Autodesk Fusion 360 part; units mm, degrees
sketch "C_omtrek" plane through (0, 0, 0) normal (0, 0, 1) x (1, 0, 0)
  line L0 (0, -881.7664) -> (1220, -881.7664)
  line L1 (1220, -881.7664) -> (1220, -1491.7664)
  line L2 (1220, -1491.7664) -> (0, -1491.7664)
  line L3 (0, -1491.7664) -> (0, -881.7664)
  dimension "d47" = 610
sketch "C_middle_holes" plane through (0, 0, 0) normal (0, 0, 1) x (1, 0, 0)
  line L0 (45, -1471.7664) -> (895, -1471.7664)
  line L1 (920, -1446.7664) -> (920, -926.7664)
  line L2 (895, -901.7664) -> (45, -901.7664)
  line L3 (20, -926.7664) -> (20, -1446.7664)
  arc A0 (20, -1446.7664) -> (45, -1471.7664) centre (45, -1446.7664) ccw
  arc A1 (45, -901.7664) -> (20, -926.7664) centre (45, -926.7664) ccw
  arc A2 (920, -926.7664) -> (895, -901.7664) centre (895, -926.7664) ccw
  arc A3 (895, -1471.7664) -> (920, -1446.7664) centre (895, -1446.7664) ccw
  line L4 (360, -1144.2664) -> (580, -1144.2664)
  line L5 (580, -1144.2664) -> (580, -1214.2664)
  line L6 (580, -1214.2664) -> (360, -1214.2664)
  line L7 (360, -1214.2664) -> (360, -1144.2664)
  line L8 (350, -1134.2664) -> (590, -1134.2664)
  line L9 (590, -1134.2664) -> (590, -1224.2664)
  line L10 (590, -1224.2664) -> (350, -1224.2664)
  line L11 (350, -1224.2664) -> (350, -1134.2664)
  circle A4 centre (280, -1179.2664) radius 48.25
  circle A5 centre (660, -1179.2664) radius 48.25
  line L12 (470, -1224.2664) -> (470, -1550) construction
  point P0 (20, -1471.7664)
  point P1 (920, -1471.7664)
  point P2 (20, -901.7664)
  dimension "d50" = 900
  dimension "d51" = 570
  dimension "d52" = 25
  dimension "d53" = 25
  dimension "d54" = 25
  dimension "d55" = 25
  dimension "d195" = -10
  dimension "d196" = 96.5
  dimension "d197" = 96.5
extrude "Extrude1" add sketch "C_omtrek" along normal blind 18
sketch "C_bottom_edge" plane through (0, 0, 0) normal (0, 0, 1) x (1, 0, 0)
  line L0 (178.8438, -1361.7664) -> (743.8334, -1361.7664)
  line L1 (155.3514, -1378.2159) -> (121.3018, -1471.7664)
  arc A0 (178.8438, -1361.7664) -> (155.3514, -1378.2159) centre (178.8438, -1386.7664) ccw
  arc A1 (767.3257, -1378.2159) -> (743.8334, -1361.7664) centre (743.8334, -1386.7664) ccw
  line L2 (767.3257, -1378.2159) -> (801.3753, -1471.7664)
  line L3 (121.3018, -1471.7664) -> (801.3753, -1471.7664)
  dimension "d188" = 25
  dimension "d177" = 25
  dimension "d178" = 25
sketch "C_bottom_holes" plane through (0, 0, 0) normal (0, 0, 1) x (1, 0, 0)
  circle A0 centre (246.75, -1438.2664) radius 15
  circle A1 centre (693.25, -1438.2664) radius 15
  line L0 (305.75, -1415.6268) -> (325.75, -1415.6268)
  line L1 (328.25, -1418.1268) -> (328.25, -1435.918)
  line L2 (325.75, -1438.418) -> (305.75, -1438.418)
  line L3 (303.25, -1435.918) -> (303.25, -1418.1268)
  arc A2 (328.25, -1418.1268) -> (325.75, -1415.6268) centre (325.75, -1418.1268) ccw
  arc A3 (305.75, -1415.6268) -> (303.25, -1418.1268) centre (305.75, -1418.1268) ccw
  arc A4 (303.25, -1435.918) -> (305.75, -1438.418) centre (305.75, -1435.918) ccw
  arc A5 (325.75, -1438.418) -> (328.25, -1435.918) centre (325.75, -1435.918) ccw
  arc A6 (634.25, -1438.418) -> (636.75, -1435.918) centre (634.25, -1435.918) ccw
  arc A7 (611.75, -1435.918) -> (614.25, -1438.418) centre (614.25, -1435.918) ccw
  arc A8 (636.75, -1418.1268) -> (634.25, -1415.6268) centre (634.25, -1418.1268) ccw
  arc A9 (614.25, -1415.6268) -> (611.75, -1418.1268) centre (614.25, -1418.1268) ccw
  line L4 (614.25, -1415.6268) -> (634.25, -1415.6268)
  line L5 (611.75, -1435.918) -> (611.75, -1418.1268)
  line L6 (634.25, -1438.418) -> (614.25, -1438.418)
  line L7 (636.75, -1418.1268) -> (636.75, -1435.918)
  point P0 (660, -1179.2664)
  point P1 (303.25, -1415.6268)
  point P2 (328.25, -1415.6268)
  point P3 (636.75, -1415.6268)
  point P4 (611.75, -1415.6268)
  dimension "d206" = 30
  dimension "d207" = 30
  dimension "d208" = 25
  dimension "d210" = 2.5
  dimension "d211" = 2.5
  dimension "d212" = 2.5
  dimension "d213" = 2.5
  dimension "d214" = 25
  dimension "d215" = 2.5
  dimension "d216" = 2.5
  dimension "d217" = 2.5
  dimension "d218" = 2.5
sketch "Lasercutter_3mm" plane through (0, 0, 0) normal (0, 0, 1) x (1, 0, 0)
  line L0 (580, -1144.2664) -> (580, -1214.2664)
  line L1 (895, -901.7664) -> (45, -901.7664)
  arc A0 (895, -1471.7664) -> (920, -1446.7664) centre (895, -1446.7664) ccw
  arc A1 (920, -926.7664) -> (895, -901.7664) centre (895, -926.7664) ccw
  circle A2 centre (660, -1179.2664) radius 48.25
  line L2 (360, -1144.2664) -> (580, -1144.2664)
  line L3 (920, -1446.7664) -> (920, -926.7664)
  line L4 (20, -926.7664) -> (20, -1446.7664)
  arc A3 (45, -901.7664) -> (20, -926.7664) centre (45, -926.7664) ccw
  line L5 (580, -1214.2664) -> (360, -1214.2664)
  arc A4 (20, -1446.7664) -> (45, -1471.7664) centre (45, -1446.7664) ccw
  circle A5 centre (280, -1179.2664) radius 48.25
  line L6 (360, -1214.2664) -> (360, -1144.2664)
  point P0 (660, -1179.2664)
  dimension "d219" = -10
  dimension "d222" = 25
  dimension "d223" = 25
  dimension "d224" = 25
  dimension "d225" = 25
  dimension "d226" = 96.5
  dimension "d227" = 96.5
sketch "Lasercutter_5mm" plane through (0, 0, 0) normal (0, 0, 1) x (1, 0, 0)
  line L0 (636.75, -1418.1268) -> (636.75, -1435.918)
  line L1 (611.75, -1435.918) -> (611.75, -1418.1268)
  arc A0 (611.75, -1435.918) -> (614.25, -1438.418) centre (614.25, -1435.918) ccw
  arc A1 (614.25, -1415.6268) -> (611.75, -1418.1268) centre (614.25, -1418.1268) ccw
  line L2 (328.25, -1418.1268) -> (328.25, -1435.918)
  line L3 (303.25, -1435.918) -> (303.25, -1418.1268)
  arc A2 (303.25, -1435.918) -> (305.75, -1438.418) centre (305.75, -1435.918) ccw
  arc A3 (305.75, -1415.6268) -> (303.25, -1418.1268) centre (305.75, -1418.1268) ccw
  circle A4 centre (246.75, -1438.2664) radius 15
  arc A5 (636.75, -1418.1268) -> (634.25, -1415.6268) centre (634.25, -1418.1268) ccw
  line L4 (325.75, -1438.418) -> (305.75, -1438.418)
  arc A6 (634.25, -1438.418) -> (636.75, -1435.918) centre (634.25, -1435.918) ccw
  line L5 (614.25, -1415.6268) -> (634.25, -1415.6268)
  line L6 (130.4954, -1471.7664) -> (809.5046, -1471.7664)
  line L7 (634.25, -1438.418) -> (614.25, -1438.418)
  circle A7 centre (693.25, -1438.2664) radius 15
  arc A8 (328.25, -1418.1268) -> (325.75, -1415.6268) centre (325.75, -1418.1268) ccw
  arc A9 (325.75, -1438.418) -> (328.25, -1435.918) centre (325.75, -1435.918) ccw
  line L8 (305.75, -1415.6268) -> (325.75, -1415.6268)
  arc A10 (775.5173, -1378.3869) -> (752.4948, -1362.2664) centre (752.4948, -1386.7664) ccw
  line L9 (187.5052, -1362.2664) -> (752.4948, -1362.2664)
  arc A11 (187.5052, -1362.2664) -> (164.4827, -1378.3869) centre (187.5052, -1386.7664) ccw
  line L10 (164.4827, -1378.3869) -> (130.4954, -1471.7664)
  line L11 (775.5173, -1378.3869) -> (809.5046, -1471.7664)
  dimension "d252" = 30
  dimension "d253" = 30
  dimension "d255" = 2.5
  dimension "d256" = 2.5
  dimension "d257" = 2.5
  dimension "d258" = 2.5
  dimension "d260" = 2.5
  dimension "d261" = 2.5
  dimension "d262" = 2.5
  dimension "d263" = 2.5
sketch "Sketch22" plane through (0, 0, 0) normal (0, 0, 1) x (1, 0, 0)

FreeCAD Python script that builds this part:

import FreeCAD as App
import Part
import Sketcher

V = App.Vector


def add_polygon(sketch, points):
    """Adds a closed chain of lines whose ends are joined by coincident constraints."""
    first, n = sketch.GeometryCount, len(points)
    for a, b in zip(points, points[1:] + points[:1]):
        sketch.addGeometry(Part.LineSegment(App.Vector(*a, 0), App.Vector(*b, 0)), False)
    for i in range(n):
        sketch.addConstraint(Sketcher.Constraint("Coincident", first + i, 2, first + (i + 1) % n, 1))

doc = App.newDocument("Part")
body = doc.addObject("PartDesign::Body", "Body")

sketch1 = body.newObject("Sketcher::SketchObject", "Sketch")
sketch1.AttachmentSupport = (doc.getObject("XY_Plane"), [""])
sketch1.MapMode = "FlatFace"
add_polygon(sketch1, [(1220, -882), (0, -882), (0, -1492), (1220, -1492)])
sketch1.addConstraint(Sketcher.Constraint("Horizontal", 0))
sketch1.addConstraint(Sketcher.Constraint("Vertical", 1))
sketch1.addConstraint(Sketcher.Constraint("Horizontal", 2))
sketch1.addConstraint(Sketcher.Constraint("Vertical", 3))
sketch1.addConstraint(Sketcher.Constraint("PointOnObject", 0, 2, -2))
sketch1.addConstraint(Sketcher.Constraint("DistanceY", 1, 2, 1, 1, 610.0))
sketch1.addConstraint(Sketcher.Constraint("DistanceX", 0, 2, 0, 1, 1220.0))
sketch1.addConstraint(Sketcher.Constraint("DistanceY", 0, 2, -1, 1, 881.7664))
pad1 = body.newObject("PartDesign::Pad", "Pad")
pad1.Profile = sketch1
pad1.Length = 18

doc.recompute()
